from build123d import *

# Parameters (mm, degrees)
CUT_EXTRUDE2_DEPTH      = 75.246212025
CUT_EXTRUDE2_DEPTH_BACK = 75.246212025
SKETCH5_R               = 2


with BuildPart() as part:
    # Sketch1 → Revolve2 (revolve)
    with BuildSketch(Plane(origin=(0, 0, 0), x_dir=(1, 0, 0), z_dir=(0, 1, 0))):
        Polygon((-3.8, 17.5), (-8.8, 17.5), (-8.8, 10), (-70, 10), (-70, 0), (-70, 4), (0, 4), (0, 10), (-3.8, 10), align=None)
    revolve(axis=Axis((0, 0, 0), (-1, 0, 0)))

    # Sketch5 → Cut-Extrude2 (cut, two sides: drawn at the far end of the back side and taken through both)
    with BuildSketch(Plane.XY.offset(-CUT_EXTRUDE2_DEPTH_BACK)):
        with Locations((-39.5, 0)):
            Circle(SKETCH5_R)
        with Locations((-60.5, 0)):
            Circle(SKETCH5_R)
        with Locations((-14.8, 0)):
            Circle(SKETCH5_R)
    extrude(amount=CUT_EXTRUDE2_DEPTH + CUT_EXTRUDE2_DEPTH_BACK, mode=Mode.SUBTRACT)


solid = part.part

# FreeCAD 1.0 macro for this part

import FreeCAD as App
import Part
import Sketcher
from FreeCAD import Vector
Q = App.Units.Quantity


def add_polygon(sketch, points):
    """Adds a closed chain of lines whose ends are joined by coincident constraints."""
    first, n = sketch.GeometryCount, len(points)
    for a, b in zip(points, points[1:] + points[:1]):
        sketch.addGeometry(Part.LineSegment(App.Vector(*a, 0), App.Vector(*b, 0)), False)
    for i in range(n):
        sketch.addConstraint(Sketcher.Constraint("Coincident", first + i, 2, first + (i + 1) % n, 1))

doc = App.newDocument("Part")
body = doc.addObject("PartDesign::Body", "Body")

# Sketch on XZ plane
sketch1 = body.newObject("Sketcher::SketchObject", "Sketch")
sketch1.AttachmentSupport = (doc.getObject("XZ_Plane"), [""])
sketch1.MapMode = "FlatFace"
add_polygon(sketch1, [(-3.8, -17.5), (-8.8, -17.5), (-8.8, -10), (-70, -10), (-70, -4), (0, -4), (0, -10), (-3.8, -10)])  # lines 0-7
sketch1.addConstraint([
    Sketcher.Constraint("Horizontal", 0),
    Sketcher.Constraint("Vertical", 1),
    Sketcher.Constraint("Horizontal", 2),
    Sketcher.Constraint("Vertical", 3),
    Sketcher.Constraint("Horizontal", 4),
    Sketcher.Constraint("Vertical", 5),
    Sketcher.Constraint("Horizontal", 6),
    Sketcher.Constraint("Vertical", 7),
    Sketcher.Constraint("PointOnObject", 4, 2, -2),
    Sketcher.Constraint("Horizontal", 2, 2, 5, 2),
    Sketcher.Constraint("DistanceX", 0, 2, 0, 1, Q("5 mm")),
    Sketcher.Constraint("DistanceX", 4, 1, 4, 2, Q("70 mm")),
    Sketcher.Constraint("DistanceY", 3, 1, 3, 2, Q("6 mm")),
    Sketcher.Constraint("DistanceX", 2, 2, 2, 1, Q("61.2 mm")),
    Sketcher.Constraint("DistanceY", 1, 1, 1, 2, Q("7.5 mm")),
    Sketcher.Constraint("DistanceY", 1, 2, -1, 1, Q("10 mm")),
])
revolution = body.newObject("PartDesign::Revolution", "Revolution")
revolution.Profile = sketch1
revolution.ReferenceAxis = (sketch1, ["H_Axis"])
revolution.Angle = 360

# Sketch on XY plane
sketch2 = body.newObject("Sketcher::SketchObject", "Sketch001")
sketch2.AttachmentSupport = (doc.getObject("XY_Plane"), [""])
sketch2.MapMode = "FlatFace"
sketch2.addGeometry([
    Part.Circle(Vector(-39.5, 0, 0), Vector(0, 0, 1), 2),
    Part.Circle(Vector(-60.5, 0, 0), Vector(0, 0, 1), 2),
    Part.Circle(Vector(-14.8, 0, 0), Vector(0, 0, 1), 2),
], False)
sketch2.addConstraint([
    Sketcher.Constraint("Equal", 0, 1),
    Sketcher.Constraint("Equal", 1, 2),
    Sketcher.Constraint("PointOnObject", 0, 3, -1),
    Sketcher.Constraint("PointOnObject", 1, 3, -1),
    Sketcher.Constraint("PointOnObject", 2, 3, -1),
    Sketcher.Constraint("Diameter", 0, Q("4 mm")),
    Sketcher.Constraint("DistanceX", 1, 3, 0, 3, Q("21 mm")),
    Sketcher.Constraint("DistanceX", 0, 3, -1, 1, Q("39.5 mm")),
    Sketcher.Constraint("DistanceX", 2, 3, -1, 1, Q("14.8 mm")),
])
pocket1 = body.newObject("PartDesign::Pocket", "Pocket")
pocket1.Profile = sketch2
pocket1.Type = "ThroughAll"
pocket1.Midplane = True

doc.recompute()
